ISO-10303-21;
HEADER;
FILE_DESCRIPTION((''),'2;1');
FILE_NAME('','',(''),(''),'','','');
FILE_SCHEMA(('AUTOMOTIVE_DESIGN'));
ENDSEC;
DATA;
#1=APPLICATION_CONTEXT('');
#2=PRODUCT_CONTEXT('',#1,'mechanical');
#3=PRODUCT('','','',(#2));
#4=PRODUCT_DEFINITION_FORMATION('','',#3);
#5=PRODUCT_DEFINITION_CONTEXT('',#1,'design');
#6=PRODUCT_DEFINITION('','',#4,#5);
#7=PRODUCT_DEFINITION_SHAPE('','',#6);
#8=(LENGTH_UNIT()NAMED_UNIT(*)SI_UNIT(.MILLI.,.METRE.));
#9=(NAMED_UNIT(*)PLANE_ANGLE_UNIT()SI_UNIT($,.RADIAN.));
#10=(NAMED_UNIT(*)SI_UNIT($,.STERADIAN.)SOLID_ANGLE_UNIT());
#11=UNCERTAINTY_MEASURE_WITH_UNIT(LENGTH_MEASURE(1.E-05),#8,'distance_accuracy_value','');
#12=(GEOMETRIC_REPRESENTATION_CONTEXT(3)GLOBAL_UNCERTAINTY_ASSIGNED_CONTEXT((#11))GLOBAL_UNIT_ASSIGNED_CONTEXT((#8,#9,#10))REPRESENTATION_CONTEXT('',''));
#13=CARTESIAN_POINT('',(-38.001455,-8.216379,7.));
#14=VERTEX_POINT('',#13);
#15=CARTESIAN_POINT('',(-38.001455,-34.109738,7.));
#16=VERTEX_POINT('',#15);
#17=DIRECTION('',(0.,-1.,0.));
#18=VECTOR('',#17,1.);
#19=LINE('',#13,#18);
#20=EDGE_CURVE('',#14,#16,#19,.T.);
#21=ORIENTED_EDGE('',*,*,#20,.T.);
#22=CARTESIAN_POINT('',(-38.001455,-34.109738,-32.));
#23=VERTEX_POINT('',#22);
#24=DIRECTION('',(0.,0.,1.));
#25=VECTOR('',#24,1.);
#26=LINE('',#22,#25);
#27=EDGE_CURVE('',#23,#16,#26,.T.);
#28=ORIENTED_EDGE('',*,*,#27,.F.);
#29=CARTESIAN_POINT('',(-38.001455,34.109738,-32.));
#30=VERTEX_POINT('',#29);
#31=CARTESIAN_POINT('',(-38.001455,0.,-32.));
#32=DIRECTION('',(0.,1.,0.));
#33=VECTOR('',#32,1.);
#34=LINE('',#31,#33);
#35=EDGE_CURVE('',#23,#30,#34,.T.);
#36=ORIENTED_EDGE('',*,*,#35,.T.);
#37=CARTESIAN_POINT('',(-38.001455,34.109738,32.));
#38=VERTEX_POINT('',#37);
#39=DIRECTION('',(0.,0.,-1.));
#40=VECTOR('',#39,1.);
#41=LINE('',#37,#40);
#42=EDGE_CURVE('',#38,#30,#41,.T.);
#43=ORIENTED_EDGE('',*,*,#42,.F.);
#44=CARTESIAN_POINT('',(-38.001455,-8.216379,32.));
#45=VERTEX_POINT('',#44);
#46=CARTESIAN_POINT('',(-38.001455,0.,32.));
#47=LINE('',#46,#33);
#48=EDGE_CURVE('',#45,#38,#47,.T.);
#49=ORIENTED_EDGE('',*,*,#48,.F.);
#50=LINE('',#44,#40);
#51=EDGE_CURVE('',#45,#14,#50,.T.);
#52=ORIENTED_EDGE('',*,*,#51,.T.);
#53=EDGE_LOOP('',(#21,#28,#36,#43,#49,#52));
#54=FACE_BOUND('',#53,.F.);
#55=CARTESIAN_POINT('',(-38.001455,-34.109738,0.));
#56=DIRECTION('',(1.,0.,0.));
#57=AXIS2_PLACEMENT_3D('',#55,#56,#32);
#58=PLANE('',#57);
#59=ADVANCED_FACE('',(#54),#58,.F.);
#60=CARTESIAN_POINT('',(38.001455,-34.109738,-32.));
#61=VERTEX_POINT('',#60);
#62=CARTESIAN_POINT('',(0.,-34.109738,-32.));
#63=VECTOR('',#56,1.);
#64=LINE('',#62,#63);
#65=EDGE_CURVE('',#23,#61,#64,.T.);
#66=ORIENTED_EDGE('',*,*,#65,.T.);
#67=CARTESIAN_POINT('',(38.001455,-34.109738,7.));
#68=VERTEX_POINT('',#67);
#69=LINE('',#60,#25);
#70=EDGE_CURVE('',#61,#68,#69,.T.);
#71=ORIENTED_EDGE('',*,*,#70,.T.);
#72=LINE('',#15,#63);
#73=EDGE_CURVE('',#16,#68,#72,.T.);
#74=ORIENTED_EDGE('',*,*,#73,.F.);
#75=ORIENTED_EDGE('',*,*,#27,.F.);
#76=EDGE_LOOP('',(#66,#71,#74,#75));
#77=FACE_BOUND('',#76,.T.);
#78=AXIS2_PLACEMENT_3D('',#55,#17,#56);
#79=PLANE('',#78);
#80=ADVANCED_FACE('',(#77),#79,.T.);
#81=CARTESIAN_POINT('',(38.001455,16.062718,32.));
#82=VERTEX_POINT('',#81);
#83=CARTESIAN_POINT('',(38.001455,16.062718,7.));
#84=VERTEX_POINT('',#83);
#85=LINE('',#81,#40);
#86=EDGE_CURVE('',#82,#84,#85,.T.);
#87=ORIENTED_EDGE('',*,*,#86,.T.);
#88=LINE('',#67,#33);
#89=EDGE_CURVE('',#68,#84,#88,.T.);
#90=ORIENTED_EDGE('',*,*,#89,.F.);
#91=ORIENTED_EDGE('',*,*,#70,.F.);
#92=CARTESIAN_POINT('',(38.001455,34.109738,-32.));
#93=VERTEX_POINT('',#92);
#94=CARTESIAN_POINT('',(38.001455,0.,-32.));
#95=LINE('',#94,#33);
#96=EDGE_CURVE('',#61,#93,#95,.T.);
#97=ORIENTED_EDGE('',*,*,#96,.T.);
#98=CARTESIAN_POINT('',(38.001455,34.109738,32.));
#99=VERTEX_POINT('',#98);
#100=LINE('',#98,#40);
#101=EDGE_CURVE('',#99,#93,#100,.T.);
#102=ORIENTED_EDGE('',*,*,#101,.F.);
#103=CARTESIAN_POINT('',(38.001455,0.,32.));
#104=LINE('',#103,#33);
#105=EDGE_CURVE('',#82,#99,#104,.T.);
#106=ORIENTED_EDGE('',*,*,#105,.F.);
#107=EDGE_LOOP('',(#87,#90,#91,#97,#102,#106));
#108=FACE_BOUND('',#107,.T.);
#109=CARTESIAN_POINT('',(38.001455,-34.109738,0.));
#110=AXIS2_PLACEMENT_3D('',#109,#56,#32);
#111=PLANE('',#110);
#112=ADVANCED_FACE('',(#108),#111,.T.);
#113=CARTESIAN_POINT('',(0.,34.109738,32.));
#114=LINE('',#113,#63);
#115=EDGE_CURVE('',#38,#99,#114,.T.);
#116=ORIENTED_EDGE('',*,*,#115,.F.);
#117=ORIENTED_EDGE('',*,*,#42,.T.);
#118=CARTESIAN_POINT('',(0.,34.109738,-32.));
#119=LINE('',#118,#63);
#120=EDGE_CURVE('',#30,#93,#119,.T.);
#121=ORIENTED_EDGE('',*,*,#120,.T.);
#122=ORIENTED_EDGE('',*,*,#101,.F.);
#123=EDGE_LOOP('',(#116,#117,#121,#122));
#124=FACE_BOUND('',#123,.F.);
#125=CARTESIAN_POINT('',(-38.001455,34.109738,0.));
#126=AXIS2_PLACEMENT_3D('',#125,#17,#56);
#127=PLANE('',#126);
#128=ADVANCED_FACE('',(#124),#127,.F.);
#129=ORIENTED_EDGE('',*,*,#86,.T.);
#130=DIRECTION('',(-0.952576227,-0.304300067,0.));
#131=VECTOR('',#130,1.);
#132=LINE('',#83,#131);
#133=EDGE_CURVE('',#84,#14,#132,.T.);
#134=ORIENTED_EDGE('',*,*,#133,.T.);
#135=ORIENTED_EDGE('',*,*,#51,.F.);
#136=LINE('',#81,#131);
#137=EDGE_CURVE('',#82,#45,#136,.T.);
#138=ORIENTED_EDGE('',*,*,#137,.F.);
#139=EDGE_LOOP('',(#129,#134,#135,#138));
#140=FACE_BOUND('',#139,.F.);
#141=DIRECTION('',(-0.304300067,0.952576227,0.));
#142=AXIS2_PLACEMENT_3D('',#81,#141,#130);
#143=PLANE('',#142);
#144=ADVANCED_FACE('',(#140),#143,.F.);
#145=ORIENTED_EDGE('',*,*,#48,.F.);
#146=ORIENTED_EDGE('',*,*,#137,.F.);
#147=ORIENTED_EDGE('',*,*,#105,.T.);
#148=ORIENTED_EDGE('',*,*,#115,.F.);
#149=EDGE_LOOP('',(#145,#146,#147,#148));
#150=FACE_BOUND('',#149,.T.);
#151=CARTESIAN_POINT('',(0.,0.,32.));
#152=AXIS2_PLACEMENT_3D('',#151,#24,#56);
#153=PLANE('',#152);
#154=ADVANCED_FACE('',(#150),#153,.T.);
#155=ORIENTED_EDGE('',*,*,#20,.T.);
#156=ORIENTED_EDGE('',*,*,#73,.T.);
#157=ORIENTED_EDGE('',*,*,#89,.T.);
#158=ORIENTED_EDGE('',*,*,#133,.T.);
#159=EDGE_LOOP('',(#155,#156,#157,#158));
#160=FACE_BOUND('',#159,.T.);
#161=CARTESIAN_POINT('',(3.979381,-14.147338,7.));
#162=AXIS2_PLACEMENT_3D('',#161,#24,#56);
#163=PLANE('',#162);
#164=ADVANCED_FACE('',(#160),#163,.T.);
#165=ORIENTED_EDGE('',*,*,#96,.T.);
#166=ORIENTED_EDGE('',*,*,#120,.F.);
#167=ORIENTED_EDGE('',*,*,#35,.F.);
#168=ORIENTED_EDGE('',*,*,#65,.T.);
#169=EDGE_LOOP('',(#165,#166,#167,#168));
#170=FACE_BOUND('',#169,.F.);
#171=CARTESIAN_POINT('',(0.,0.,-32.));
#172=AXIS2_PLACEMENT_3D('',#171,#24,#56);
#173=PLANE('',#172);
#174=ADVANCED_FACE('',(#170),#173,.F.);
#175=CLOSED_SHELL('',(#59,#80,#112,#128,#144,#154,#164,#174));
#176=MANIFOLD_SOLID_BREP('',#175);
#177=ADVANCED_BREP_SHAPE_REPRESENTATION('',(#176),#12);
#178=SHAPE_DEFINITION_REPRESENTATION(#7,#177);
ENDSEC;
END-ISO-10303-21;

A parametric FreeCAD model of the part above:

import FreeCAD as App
import Part
import Sketcher

V = App.Vector

doc = App.newDocument("Part")
body = doc.addObject("PartDesign::Body", "Body")

# Sketch on XY plane
sketch1 = doc.addObject("Sketcher::SketchObject", "Sketch")
body.addObject(sketch1)
sketch1.AttachmentSupport = (doc.XY_Plane, [""])
sketch1.MapMode = "FlatFace"
sketch1.addGeometry([
    Part.LineSegment(V(-38, 34, 0), V(-38, -34, 0)),
    Part.LineSegment(V(-38, -34, 0), V(38, -34, 0)),
    Part.LineSegment(V(38, -34, 0), V(38, 34, 0)),
    Part.LineSegment(V(38, 34, 0), V(-38, 34, 0)),
], False)
sketch1.addConstraint([
    Sketcher.Constraint("Coincident", 0, 2, 1, 1),
    Sketcher.Constraint("Coincident", 1, 2, 2, 1),
    Sketcher.Constraint("Coincident", 2, 2, 3, 1),
    Sketcher.Constraint("Coincident", 3, 2, 0, 1),
    Sketcher.Constraint("Vertical", 0),
    Sketcher.Constraint("Horizontal", 1),
    Sketcher.Constraint("Vertical", 2),
    Sketcher.Constraint("Horizontal", 3),
    Sketcher.Constraint("Symmetric", 0, 2, 2, 2, -1, 1),
    Sketcher.Constraint("DistanceX", 1, 1, 1, 2, 76.00291),
    Sketcher.Constraint("DistanceY", 0, 2, 0, 1, 68.219476),
])
pad1 = doc.addObject("PartDesign::Pad", "Pad")
body.addObject(pad1)
pad1.Profile = sketch1
pad1.Length = 64
pad1.Midplane = True

# Sketch on XY plane
sketch2 = doc.addObject("Sketcher::SketchObject", "Sketch001")
body.addObject(sketch2)
sketch2.AttachmentSupport = (doc.XY_Plane, [""])
sketch2.MapMode = "FlatFace"
sketch2.AttachmentOffset = App.Placement(V(0, 0, 32), App.Rotation())
sketch2.addGeometry([
    Part.LineSegment(V(-38, -34, 0), V(38, -34, 0)),
    Part.LineSegment(V(38, -34, 0), V(38, 16, 0)),
    Part.LineSegment(V(38, 16, 0), V(-38, -8, 0)),
    Part.LineSegment(V(-38, -8, 0), V(-38, -34, 0)),
], False)
sketch2.addConstraint([
    Sketcher.Constraint("Coincident", 0, 2, 1, 1),
    Sketcher.Constraint("Coincident", 1, 2, 2, 1),
    Sketcher.Constraint("Coincident", 2, 2, 3, 1),
    Sketcher.Constraint("Coincident", 3, 2, 0, 1),
    Sketcher.Constraint("Horizontal", 0),
    Sketcher.Constraint("Vertical", 1),
    Sketcher.Constraint("Vertical", 3),
    Sketcher.Constraint("DistanceX", 0, 1, 0, 2, 76.00291),
    Sketcher.Constraint("DistanceY", 3, 2, 3, 1, 25.893359),
    Sketcher.Constraint("DistanceY", 1, 1, 1, 2, 50.172456),
    Sketcher.Constraint("DistanceY", -1, 1, 1, 2, 16.062718),
    Sketcher.Constraint("DistanceX", -1, 1, 0, 2, 38.001455),
])
pocket1 = doc.addObject("PartDesign::Pocket", "Pocket")
body.addObject(pocket1)
pocket1.Profile = sketch2
pocket1.Length = 25

doc.recompute()
